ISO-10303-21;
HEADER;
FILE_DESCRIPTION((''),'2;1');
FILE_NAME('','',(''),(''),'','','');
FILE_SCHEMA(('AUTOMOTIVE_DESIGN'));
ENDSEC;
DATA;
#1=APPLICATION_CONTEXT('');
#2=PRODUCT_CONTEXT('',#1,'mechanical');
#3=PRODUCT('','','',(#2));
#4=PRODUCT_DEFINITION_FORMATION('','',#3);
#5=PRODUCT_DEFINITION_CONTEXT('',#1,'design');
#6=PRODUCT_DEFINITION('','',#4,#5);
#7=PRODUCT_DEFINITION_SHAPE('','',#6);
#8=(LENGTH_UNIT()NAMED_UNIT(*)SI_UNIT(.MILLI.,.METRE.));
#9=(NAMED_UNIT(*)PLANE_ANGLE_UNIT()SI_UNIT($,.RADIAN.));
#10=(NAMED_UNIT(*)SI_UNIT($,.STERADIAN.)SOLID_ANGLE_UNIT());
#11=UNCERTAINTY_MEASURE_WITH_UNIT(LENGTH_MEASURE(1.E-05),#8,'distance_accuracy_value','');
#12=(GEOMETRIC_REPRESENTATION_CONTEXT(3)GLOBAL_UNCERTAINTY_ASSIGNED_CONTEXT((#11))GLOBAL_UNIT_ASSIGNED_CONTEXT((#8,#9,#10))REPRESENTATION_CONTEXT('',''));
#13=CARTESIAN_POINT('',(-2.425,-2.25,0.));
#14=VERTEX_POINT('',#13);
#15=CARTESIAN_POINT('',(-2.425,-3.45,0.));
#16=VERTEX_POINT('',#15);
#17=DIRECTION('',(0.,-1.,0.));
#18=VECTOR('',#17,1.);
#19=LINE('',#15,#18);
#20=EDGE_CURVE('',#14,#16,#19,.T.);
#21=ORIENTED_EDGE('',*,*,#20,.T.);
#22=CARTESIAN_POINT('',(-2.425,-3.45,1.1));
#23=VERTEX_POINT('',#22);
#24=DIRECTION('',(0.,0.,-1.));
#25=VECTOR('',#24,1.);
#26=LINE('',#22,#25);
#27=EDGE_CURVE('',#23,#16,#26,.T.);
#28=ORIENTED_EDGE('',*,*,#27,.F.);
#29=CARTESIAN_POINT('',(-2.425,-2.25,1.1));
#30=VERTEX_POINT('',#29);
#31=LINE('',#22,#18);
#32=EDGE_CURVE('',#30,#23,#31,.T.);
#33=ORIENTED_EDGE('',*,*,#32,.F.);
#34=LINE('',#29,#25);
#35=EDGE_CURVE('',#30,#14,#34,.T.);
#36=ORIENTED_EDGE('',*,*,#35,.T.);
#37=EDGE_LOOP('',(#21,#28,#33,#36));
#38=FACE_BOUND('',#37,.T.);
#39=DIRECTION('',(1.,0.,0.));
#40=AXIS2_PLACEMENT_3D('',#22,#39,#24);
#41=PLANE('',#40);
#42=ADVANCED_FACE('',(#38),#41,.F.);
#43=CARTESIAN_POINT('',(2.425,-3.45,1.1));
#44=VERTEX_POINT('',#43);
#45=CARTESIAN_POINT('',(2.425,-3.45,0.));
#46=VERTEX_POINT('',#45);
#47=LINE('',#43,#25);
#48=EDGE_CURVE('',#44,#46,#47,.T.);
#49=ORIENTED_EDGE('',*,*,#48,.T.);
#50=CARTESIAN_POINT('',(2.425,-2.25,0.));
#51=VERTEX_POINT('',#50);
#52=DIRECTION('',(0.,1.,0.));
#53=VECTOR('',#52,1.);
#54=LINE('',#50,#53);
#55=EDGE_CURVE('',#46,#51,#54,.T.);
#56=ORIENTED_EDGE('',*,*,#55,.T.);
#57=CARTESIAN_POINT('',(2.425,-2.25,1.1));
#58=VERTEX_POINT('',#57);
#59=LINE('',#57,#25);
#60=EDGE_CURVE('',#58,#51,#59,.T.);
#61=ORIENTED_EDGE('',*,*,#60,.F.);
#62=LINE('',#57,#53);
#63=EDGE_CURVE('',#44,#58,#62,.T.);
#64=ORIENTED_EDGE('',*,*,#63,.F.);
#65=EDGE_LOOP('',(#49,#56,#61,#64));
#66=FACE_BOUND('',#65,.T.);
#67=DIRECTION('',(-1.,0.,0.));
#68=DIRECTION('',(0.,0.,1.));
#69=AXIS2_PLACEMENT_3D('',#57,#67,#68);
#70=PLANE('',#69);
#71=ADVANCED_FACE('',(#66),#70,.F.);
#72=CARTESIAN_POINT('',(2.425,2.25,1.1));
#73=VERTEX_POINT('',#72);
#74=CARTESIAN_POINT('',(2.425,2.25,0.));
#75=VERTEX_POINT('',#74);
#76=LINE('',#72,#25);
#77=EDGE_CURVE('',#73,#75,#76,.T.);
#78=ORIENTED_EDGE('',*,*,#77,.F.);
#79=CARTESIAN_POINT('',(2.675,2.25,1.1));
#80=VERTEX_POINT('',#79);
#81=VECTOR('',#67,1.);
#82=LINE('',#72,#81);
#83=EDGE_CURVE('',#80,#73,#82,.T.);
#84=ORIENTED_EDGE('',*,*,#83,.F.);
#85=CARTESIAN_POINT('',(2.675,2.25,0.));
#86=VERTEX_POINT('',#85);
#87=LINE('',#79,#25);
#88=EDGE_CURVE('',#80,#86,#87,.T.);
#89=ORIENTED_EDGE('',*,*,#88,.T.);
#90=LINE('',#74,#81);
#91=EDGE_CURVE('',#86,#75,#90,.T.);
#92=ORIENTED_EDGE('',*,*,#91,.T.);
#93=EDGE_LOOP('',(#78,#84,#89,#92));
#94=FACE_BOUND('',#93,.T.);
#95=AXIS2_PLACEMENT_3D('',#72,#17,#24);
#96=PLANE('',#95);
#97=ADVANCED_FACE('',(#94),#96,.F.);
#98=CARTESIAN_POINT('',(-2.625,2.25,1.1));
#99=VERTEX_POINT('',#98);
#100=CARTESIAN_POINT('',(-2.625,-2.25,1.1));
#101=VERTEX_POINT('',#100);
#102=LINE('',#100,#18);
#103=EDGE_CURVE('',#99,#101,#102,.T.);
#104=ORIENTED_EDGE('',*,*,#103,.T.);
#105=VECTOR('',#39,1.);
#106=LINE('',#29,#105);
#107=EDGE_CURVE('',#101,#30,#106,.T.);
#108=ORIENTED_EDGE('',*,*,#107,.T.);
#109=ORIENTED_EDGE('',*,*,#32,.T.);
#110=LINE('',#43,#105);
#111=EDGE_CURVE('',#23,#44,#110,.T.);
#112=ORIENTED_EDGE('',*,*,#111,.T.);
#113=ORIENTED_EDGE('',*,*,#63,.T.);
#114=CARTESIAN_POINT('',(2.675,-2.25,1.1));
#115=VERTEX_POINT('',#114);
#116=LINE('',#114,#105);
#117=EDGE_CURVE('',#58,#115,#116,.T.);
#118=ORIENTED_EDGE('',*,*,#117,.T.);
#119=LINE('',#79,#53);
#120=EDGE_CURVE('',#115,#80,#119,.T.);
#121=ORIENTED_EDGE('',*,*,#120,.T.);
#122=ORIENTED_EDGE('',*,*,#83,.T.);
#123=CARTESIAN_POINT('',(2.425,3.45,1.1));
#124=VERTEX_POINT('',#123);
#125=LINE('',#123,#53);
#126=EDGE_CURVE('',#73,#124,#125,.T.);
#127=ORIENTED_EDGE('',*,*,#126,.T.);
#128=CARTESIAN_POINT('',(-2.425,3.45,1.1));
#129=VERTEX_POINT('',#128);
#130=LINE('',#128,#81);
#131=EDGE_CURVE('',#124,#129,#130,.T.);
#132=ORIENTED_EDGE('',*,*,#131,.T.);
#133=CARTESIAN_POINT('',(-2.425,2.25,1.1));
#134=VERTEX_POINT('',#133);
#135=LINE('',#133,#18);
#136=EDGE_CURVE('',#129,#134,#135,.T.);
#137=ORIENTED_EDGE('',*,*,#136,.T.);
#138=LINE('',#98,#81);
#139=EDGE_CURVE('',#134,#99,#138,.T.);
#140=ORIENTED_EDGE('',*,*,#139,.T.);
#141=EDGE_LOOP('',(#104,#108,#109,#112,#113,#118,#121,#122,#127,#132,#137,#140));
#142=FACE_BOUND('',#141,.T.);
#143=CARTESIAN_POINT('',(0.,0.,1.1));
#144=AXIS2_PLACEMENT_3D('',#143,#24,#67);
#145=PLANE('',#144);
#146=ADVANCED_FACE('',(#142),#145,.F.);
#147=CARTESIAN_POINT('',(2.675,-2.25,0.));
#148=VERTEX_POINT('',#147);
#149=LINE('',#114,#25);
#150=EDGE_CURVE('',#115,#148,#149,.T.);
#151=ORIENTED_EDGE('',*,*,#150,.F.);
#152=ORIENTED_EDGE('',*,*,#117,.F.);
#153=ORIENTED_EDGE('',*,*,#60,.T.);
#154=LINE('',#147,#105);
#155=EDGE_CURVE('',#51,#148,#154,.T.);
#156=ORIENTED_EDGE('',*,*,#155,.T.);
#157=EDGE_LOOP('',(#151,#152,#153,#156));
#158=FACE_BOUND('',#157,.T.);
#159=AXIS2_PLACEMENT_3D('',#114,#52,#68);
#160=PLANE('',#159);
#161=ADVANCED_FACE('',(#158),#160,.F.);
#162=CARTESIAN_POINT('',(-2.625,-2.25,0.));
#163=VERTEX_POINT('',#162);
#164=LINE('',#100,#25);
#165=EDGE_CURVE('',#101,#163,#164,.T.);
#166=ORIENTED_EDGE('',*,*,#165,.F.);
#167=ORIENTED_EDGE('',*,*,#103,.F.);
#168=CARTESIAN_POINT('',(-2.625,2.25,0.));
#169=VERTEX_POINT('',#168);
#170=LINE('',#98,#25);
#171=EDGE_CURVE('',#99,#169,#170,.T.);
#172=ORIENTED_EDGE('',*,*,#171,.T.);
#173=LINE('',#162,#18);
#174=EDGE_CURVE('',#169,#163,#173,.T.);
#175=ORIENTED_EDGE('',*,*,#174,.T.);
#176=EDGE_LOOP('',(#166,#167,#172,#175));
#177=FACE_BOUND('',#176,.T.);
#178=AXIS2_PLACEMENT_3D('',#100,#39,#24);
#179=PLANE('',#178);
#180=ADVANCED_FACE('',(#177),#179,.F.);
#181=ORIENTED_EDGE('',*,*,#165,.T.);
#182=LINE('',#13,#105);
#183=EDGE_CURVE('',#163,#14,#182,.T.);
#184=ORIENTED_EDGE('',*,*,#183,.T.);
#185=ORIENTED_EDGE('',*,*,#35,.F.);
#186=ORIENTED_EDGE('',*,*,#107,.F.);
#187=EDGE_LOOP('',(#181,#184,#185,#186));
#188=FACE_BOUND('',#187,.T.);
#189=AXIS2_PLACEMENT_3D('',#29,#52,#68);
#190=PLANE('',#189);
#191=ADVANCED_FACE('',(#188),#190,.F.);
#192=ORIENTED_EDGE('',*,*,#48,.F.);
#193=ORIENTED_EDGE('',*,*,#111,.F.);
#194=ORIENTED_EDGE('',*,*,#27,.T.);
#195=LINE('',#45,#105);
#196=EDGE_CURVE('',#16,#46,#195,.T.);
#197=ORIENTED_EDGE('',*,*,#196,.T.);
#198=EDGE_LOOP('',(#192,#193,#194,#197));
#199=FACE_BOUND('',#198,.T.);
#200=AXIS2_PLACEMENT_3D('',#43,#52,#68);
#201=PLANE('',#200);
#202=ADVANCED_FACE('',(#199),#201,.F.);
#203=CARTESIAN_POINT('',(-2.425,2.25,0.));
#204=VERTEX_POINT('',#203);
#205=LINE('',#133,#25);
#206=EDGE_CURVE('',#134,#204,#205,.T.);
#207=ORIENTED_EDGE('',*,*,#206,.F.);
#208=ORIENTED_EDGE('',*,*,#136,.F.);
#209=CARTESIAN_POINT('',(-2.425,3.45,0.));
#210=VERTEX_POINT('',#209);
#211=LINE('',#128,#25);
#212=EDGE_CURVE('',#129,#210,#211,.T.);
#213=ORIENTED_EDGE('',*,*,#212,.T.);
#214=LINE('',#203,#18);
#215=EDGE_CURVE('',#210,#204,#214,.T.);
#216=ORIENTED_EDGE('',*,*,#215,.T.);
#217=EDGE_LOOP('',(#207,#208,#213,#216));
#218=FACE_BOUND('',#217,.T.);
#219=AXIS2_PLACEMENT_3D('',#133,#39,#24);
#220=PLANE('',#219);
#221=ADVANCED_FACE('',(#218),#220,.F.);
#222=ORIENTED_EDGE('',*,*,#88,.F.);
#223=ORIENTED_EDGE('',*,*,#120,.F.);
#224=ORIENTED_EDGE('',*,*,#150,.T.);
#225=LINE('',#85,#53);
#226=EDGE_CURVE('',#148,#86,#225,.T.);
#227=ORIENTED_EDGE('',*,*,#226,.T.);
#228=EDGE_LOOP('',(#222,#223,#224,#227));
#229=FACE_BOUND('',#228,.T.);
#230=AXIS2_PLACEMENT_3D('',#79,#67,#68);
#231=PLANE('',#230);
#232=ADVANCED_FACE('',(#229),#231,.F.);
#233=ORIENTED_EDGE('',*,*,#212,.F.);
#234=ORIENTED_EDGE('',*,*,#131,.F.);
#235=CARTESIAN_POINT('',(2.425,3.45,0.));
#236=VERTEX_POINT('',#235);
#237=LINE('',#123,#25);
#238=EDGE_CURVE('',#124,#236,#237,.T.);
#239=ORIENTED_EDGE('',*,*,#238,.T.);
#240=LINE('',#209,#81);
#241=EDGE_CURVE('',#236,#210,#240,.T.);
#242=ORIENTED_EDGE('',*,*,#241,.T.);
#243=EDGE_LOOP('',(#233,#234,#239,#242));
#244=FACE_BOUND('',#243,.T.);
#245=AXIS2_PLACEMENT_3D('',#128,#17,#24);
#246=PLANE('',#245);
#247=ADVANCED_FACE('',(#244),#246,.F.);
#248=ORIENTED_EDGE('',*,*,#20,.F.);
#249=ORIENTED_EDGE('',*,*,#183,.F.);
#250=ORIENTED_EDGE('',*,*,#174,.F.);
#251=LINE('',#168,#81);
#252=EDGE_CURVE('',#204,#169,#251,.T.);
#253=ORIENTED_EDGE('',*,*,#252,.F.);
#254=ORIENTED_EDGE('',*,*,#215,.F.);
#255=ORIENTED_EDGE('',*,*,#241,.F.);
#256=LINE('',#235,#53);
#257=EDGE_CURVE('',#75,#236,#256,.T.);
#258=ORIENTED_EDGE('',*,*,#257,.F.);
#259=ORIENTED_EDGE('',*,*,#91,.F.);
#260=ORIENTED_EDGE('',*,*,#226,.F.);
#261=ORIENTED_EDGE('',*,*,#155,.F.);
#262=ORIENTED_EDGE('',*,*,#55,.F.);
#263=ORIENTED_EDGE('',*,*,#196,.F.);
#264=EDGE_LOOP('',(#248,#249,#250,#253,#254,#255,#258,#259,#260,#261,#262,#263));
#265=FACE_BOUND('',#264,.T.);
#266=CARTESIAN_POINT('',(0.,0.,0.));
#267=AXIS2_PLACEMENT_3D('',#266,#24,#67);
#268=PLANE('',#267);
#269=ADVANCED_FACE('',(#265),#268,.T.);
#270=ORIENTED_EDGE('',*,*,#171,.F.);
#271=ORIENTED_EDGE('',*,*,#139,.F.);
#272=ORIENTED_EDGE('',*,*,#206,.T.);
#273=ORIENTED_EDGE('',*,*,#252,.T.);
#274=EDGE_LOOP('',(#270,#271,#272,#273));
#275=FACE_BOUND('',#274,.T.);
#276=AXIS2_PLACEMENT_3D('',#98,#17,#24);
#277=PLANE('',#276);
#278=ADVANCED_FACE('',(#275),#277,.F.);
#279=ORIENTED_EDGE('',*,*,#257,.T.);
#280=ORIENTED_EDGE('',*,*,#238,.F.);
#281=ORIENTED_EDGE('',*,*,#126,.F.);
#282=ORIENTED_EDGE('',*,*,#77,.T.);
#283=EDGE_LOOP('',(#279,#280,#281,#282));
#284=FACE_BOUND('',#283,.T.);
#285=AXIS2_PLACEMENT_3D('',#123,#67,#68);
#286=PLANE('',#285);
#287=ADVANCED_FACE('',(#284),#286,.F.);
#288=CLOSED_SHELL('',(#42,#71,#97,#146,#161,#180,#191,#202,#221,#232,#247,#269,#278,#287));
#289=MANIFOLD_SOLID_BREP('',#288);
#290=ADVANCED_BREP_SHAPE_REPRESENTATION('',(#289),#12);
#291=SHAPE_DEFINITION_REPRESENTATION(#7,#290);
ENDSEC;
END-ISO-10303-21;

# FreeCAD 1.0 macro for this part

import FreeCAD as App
import Part
import Sketcher

doc = App.newDocument("Part")
body = doc.addObject("PartDesign::Body", "Body")

# Sketch on XY plane
sketch1 = body.newObject("Sketcher::SketchObject", "Sketch")
sketch1.AttachmentSupport = (doc.getObject("XY_Plane"), [""])
sketch1.MapMode = "FlatFace"
sketch1.addGeometry([
    Part.LineSegment(App.Vector(2.42, -2.25, 0), App.Vector(2.67, -2.25, 0)),  # 0
    Part.LineSegment(App.Vector(2.67, -2.25, 0), App.Vector(2.67, 2.25, 0)),  # 1
    Part.LineSegment(App.Vector(2.67, 2.25, 0), App.Vector(2.42, 2.25, 0)),  # 2
    Part.LineSegment(App.Vector(2.42, 2.25, 0), App.Vector(2.42, 3.45, 0)),  # 3
    Part.LineSegment(App.Vector(2.42, 3.45, 0), App.Vector(-2.42, 3.45, 0)),  # 4
    Part.LineSegment(App.Vector(-2.42, 3.45, 0), App.Vector(-2.42, 2.25, 0)),  # 5
    Part.LineSegment(App.Vector(-2.42, 2.25, 0), App.Vector(-2.62, 2.25, 0)),  # 6
    Part.LineSegment(App.Vector(-2.62, 2.25, 0), App.Vector(-2.62, -2.25, 0)),  # 7
    Part.LineSegment(App.Vector(-2.62, -2.25, 0), App.Vector(-2.42, -2.25, 0)),  # 8
    Part.LineSegment(App.Vector(-2.42, -2.25, 0), App.Vector(-2.42, -3.45, 0)),  # 9
    Part.LineSegment(App.Vector(-2.42, -3.45, 0), App.Vector(2.42, -3.45, 0)),  # 10
    Part.LineSegment(App.Vector(2.42, -3.45, 0), App.Vector(2.42, -2.25, 0)),  # 11
], False)
sketch1.addConstraint([
    Sketcher.Constraint("Coincident", 0, 2, 1, 1),
    Sketcher.Constraint("Coincident", 1, 2, 2, 1),
    Sketcher.Constraint("Coincident", 2, 2, 3, 1),
    Sketcher.Constraint("Coincident", 3, 2, 4, 1),
    Sketcher.Constraint("Coincident", 4, 2, 5, 1),
    Sketcher.Constraint("Coincident", 5, 2, 6, 1),
    Sketcher.Constraint("Coincident", 6, 2, 7, 1),
    Sketcher.Constraint("Coincident", 7, 2, 8, 1),
    Sketcher.Constraint("Coincident", 8, 2, 9, 1),
    Sketcher.Constraint("Coincident", 9, 2, 10, 1),
    Sketcher.Constraint("Coincident", 10, 2, 11, 1),
    Sketcher.Constraint("Coincident", 11, 2, 0, 1),
    Sketcher.Constraint("Horizontal", 0),
    Sketcher.Constraint("Vertical", 1),
    Sketcher.Constraint("Horizontal", 2),
    Sketcher.Constraint("Vertical", 3),
    Sketcher.Constraint("Horizontal", 4),
    Sketcher.Constraint("Vertical", 5),
    Sketcher.Constraint("Horizontal", 6),
    Sketcher.Constraint("Vertical", 7),
    Sketcher.Constraint("Horizontal", 8),
    Sketcher.Constraint("Vertical", 9),
    Sketcher.Constraint("Horizontal", 10),
    Sketcher.Constraint("Vertical", 11),
    Sketcher.Constraint("Symmetric", 2, 2, 8, 2, -1, 1),
    Sketcher.Constraint("Symmetric", 4, 2, 10, 2, -1, 1),
    Sketcher.Constraint("Symmetric", 2, 2, 5, 2, -2),
    Sketcher.Constraint("Horizontal", 0, 2, 7, 2),
    Sketcher.Constraint("DistanceX", 6, 2, 6, 1, 0.2),
    Sketcher.Constraint("DistanceY", 1, 1, 1, 2, 4.5),
    Sketcher.Constraint("DistanceY", 3, 1, 3, 2, 1.2),
    Sketcher.Constraint("DistanceX", 0, 1, 0, 2, 0.25),
    Sketcher.Constraint("DistanceX", 4, 2, 4, 1, 4.85),
])
pad1 = body.newObject("PartDesign::Pad", "Pad")
pad1.Profile = sketch1
pad1.Length = 1.1

doc.recompute()
